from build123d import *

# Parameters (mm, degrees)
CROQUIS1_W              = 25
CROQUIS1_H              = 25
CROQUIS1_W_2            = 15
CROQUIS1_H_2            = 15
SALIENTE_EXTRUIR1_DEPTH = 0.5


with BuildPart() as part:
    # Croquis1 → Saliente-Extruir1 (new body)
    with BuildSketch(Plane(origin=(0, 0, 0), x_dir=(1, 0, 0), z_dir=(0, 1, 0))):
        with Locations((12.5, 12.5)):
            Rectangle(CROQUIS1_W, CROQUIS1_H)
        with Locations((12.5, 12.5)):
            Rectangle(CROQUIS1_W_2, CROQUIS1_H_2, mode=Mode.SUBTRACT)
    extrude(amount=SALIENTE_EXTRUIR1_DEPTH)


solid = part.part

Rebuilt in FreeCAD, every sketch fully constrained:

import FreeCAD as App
import Part
import Sketcher

V = App.Vector

doc = App.newDocument("Part")
body = doc.addObject("PartDesign::Body", "Body")

sketch1 = body.newObject("Sketcher::SketchObject", "Sketch")
sketch1.AttachmentSupport = (doc.getObject("XZ_Plane"), [""])
sketch1.MapMode = "FlatFace"
sketch1.addGeometry([
    Part.LineSegment(V(0, -25, 0), V(0, 0, 0)),
    Part.LineSegment(V(0, 0, 0), V(25, 0, 0)),
    Part.LineSegment(V(25, 0, 0), V(25, -25, 0)),
    Part.LineSegment(V(25, -25, 0), V(0, -25, 0)),
    Part.LineSegment(V(20, -5, 0), V(5, -5, 0)),
    Part.LineSegment(V(5, -5, 0), V(5, -20, 0)),
    Part.LineSegment(V(5, -20, 0), V(20, -20, 0)),
    Part.LineSegment(V(20, -20, 0), V(20, -5, 0)),
], False)
sketch1.addConstraint([
    Sketcher.Constraint("Coincident", 0, 2, 1, 1),
    Sketcher.Constraint("Coincident", 1, 2, 2, 1),
    Sketcher.Constraint("Coincident", 2, 2, 3, 1),
    Sketcher.Constraint("Coincident", 3, 2, 0, 1),
    Sketcher.Constraint("Coincident", 4, 2, 5, 1),
    Sketcher.Constraint("Coincident", 5, 2, 6, 1),
    Sketcher.Constraint("Coincident", 6, 2, 7, 1),
    Sketcher.Constraint("Coincident", 7, 2, 4, 1),
    Sketcher.Constraint("Vertical", 0),
    Sketcher.Constraint("Horizontal", 1),
    Sketcher.Constraint("Vertical", 2),
    Sketcher.Constraint("Horizontal", 3),
    Sketcher.Constraint("Horizontal", 4),
    Sketcher.Constraint("Vertical", 5),
    Sketcher.Constraint("Horizontal", 6),
    Sketcher.Constraint("Vertical", 7),
    Sketcher.Constraint("Coincident", 0, 2, -1, 1),
    Sketcher.Constraint("Equal", 3, 0),
    Sketcher.Constraint("Equal", 6, 5),
    Sketcher.Constraint("DistanceX", 1, 1, 1, 2, 25.0),
    Sketcher.Constraint("DistanceX", 4, 2, 4, 1, 15.0),
    Sketcher.Constraint("DistanceX", -1, 1, 4, 2, 5.0),
    Sketcher.Constraint("DistanceY", 4, 2, -1, 1, 5.0),
])
pad1 = body.newObject("PartDesign::Pad", "Pad")
pad1.Profile = sketch1
pad1.Length = 0.5
pad1.Reversed = True

doc.recompute()
